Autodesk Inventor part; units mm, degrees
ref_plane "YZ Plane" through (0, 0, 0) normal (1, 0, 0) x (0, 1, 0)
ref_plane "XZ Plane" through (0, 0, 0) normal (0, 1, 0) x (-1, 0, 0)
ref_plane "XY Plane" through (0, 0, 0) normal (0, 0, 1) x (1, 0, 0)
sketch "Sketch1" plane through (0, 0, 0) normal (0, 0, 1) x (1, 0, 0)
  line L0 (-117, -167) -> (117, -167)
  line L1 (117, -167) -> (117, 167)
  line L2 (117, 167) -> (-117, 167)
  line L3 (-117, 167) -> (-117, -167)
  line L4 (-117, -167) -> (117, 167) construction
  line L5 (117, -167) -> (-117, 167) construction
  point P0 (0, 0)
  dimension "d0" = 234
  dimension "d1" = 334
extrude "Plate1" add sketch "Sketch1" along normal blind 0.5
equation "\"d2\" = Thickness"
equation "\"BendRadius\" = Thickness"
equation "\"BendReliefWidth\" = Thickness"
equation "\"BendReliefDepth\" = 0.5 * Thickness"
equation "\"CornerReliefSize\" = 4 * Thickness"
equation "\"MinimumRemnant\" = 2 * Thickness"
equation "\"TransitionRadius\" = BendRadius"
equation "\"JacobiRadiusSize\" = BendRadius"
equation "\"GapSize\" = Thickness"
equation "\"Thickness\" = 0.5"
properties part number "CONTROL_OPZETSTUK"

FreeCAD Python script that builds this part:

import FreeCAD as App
import Part
import Sketcher

doc = App.newDocument("Part")
body = doc.addObject("PartDesign::Body", "Body")

# Sketch on XY plane
sketch1 = body.newObject("Sketcher::SketchObject", "Sketch")
sketch1.AttachmentSupport = (doc.getObject("XY_Plane"), [""])
sketch1.MapMode = "FlatFace"
sketch1.addGeometry([
    Part.LineSegment(App.Vector(-117, 167, 0), App.Vector(-117, -167, 0)),
    Part.LineSegment(App.Vector(-117, -167, 0), App.Vector(117, -167, 0)),
    Part.LineSegment(App.Vector(117, -167, 0), App.Vector(117, 167, 0)),
    Part.LineSegment(App.Vector(117, 167, 0), App.Vector(-117, 167, 0)),
], False)
sketch1.addConstraint([
    Sketcher.Constraint("Coincident", 0, 2, 1, 1),
    Sketcher.Constraint("Coincident", 1, 2, 2, 1),
    Sketcher.Constraint("Coincident", 2, 2, 3, 1),
    Sketcher.Constraint("Coincident", 3, 2, 0, 1),
    Sketcher.Constraint("Vertical", 0),
    Sketcher.Constraint("Horizontal", 1),
    Sketcher.Constraint("Vertical", 2),
    Sketcher.Constraint("Horizontal", 3),
    Sketcher.Constraint("Symmetric", 0, 2, 2, 2, -1, 1),
    Sketcher.Constraint("DistanceX", 1, 1, 1, 2, 234.0),
    Sketcher.Constraint("DistanceY", 0, 2, 0, 1, 334.0),
])
pad1 = body.newObject("PartDesign::Pad", "Pad")
pad1.Profile = sketch1
pad1.Length = 0.5

doc.recompute()
